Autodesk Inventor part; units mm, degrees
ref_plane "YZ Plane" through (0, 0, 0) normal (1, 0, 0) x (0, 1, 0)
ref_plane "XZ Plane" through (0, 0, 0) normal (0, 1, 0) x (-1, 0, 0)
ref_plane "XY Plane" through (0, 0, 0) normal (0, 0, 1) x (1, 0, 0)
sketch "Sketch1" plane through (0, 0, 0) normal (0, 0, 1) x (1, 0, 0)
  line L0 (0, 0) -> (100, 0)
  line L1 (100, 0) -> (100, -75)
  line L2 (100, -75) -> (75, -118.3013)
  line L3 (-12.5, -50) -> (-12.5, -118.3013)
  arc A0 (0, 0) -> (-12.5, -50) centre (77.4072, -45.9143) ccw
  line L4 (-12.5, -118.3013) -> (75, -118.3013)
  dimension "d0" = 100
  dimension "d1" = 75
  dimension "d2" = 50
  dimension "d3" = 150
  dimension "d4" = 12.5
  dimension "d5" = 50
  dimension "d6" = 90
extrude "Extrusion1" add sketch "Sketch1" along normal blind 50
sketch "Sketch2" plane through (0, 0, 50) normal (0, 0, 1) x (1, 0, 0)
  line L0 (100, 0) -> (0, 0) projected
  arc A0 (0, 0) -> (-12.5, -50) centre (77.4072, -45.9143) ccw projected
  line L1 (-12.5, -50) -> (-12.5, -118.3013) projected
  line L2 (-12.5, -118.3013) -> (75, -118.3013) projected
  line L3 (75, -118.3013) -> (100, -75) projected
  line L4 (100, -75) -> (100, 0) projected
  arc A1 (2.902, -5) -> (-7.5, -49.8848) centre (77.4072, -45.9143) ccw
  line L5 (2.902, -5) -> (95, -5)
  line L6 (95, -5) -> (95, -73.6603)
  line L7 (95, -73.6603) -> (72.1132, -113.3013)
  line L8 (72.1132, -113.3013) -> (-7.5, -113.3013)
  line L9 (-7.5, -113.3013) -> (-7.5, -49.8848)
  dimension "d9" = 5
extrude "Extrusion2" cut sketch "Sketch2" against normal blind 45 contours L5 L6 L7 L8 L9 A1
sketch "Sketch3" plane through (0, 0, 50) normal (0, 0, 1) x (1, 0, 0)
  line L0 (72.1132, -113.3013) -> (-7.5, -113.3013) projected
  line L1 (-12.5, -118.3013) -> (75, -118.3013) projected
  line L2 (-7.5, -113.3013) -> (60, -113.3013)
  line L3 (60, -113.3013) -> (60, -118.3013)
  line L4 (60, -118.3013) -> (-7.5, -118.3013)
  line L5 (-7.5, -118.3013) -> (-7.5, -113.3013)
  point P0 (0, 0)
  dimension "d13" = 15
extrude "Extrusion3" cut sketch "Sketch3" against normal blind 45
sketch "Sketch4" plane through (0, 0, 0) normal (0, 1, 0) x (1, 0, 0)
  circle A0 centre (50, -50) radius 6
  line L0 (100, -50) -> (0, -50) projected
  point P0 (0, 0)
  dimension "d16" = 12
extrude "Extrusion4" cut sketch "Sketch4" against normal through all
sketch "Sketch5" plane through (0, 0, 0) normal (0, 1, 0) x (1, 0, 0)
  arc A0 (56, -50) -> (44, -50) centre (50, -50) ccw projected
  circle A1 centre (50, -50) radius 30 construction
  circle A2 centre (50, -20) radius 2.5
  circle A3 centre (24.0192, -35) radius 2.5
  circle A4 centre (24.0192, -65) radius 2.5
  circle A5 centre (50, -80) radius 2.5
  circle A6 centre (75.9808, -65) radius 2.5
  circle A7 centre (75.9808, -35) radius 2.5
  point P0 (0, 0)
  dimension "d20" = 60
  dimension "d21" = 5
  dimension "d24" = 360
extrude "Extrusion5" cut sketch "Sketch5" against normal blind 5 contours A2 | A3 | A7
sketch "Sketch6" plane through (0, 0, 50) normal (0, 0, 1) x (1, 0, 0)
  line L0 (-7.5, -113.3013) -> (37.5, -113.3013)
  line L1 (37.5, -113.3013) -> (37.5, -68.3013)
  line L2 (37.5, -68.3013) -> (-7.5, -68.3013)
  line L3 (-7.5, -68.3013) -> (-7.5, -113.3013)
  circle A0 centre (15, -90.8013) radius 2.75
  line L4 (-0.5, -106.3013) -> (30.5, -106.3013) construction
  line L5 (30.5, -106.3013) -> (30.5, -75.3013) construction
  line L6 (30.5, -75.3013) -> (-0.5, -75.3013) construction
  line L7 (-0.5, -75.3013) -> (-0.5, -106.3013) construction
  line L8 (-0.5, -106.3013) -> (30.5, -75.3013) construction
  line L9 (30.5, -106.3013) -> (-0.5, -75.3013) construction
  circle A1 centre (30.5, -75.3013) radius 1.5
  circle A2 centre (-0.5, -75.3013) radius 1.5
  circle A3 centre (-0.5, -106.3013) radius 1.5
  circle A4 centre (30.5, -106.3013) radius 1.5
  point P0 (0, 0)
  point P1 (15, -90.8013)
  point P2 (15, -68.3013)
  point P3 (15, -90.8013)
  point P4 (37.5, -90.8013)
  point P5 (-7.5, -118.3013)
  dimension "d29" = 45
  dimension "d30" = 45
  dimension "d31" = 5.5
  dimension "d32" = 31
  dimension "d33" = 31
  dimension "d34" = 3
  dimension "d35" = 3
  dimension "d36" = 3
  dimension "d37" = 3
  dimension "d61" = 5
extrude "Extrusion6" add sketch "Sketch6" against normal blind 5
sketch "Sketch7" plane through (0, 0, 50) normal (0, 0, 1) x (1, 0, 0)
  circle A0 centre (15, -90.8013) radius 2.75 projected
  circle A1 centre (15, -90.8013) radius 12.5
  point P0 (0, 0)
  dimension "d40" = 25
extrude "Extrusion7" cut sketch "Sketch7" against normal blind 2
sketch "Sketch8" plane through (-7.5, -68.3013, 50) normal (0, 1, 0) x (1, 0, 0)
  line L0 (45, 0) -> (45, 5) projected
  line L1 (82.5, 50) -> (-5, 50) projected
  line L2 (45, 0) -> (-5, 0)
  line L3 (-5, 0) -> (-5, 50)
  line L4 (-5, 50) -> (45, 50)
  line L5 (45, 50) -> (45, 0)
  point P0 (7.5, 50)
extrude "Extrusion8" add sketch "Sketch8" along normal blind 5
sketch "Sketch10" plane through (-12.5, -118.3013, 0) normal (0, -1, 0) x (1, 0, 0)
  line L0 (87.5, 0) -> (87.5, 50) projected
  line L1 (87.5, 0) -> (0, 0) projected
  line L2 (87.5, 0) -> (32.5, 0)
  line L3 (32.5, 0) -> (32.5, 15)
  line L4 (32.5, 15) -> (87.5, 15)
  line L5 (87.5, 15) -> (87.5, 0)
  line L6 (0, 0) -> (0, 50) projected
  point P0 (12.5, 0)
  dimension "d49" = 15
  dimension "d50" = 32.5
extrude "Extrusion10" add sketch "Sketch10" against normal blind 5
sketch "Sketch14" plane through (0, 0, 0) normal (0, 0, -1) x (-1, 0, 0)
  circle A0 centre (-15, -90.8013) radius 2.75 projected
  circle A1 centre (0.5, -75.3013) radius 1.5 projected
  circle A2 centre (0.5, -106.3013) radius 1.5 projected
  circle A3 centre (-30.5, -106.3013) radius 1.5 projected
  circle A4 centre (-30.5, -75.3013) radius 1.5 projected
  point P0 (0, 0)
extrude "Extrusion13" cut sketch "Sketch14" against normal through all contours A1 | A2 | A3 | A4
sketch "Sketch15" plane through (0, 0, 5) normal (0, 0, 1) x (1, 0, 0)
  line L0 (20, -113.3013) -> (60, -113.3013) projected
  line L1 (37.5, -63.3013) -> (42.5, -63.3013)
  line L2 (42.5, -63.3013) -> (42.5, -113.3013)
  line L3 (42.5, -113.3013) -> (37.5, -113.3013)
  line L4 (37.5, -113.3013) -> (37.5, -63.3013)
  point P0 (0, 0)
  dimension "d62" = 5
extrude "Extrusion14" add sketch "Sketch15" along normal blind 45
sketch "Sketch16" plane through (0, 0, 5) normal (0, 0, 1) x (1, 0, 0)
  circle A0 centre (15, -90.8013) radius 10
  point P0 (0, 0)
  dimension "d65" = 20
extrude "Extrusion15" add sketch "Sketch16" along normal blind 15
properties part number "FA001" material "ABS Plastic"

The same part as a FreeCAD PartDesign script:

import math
import FreeCAD as App
import Part
import Sketcher
Q = App.Units.Quantity


def add_polygon(sketch, points):
    """Adds a closed chain of lines whose ends are joined by coincident constraints."""
    first, n = sketch.GeometryCount, len(points)
    for a, b in zip(points, points[1:] + points[:1]):
        sketch.addGeometry(Part.LineSegment(App.Vector(*a, 0), App.Vector(*b, 0)), False)
    for i in range(n):
        sketch.addConstraint(Sketcher.Constraint("Coincident", first + i, 2, first + (i + 1) % n, 1))

doc = App.newDocument("Part")
params = doc.addObject("Spreadsheet::Sheet", "Params")
for row, (alias, value) in enumerate([
    ("sketch1_radius", "90 mm"),
    ("sketch1_width", "100 mm"),
    ("sketch1_height", "75 mm"),
    ("sketch1_length", "50 mm"),
    ("pad1_length", "50 mm"),
    ("sketch2_radius", "85 mm"),
    ("pocket1_length", "45 mm"),
    ("sketch3_height", "5 mm"),
    ("sketch3_width", "67.5 mm"),
    ("pocket2_length", "45 mm"),
    ("sketch4_diameter", "12 mm"),
    ("sketch5_diameter", "5 mm"),
    ("pocket4_length", "5 mm"),
    ("sketch6_diameter", "3 mm"),
    ("sketch6_diameter2", "5.5 mm"),
    ("sketch6_width", "45 mm"),
    ("pad2_length", "5 mm"),
    ("sketch7_diameter", "25 mm"),
    ("sketch7_diameter2", "5.5 mm"),
    ("pocket5_length", "2 mm"),
    ("sketch8_width", "50 mm"),
    ("pad3_length", "5 mm"),
    ("sketch9_height", "15 mm"),
    ("sketch9_width", "55 mm"),
    ("pad4_length", "5 mm"),
    ("sketch10_diameter", "3 mm"),
    ("sketch11_width", "5 mm"),
    ("sketch11_height", "50 mm"),
    ("pad5_length", "45 mm"),
    ("sketch12_diameter", "20 mm"),
    ("pad6_length", "15 mm"),
], start=1):
    params.set(f"A{row}", alias)
    params.set(f"B{row}", "=" + value)
    params.setAlias(f"B{row}", alias)

body = doc.addObject("PartDesign::Body", "Body")

# Sketch on XY plane
sketch1 = body.newObject("Sketcher::SketchObject", "Sketch")
sketch1.AttachmentSupport = (doc.getObject("XY_Plane"), [""])
sketch1.MapMode = "FlatFace"
sketch1.addGeometry(Part.LineSegment(App.Vector(100, 0, 0), App.Vector(0, 0, 0)), False)
sketch1.addGeometry(Part.ArcOfCircle(Part.Circle(App.Vector(77, -46, 0), App.Vector(0, 0, 1), 90), math.radians(149), math.radians(183)), False)
sketch1.addGeometry(Part.LineSegment(App.Vector(-12, -50, 0), App.Vector(-12, -118, 0)), False)
sketch1.addGeometry(Part.LineSegment(App.Vector(-12, -118, 0), App.Vector(75, -118, 0)), False)
sketch1.addGeometry(Part.LineSegment(App.Vector(75, -118, 0), App.Vector(100, -75, 0)), False)
sketch1.addGeometry(Part.LineSegment(App.Vector(100, -75, 0), App.Vector(100, 0, 0)), False)
sketch1.addConstraint(Sketcher.Constraint("Coincident", 0, 2, 1, 1))
sketch1.addConstraint(Sketcher.Constraint("Coincident", 1, 2, 2, 1))
sketch1.addConstraint(Sketcher.Constraint("Coincident", 2, 2, 3, 1))
sketch1.addConstraint(Sketcher.Constraint("Coincident", 3, 2, 4, 1))
sketch1.addConstraint(Sketcher.Constraint("Coincident", 4, 2, 5, 1))
sketch1.addConstraint(Sketcher.Constraint("Coincident", 5, 2, 0, 1))
sketch1.addConstraint(Sketcher.Constraint("Horizontal", 0))
sketch1.addConstraint(Sketcher.Constraint("Vertical", 2))
sketch1.addConstraint(Sketcher.Constraint("Horizontal", 3))
sketch1.addConstraint(Sketcher.Constraint("Vertical", 5))
sketch1.addConstraint(Sketcher.Constraint("Coincident", 0, 2, -1, 1))
sketch1.addConstraint(Sketcher.Constraint("Radius", 1, Q("90 mm")))
sketch1.addConstraint(Sketcher.Constraint("DistanceX", 0, 2, 0, 1, Q("100 mm")))
sketch1.addConstraint(Sketcher.Constraint("DistanceY", 5, 1, 5, 2, Q("75 mm")))
sketch1.addConstraint(Sketcher.Constraint("Distance", 4, Q("50 mm")))
sketch1.addConstraint(Sketcher.Constraint("DistanceY", 1, 2, -1, 1, Q("50 mm")))
sketch1.addConstraint(Sketcher.Constraint("DistanceX", -1, 1, 3, 2, Q("75 mm")))
sketch1.addConstraint(Sketcher.Constraint("DistanceX", 1, 2, -1, 1, Q("12.5 mm")))
sketch1.setExpression("Constraints[11]", "Params.sketch1_radius")
sketch1.setExpression("Constraints[12]", "Params.sketch1_width")
sketch1.setExpression("Constraints[13]", "Params.sketch1_height")
sketch1.setExpression("Constraints[14]", "Params.sketch1_length")
pad1 = body.newObject("PartDesign::Pad", "Pad")
pad1.Profile = sketch1
pad1.setExpression("Length", "Params.pad1_length")

# Sketch on XY plane
sketch2 = body.newObject("Sketcher::SketchObject", "Sketch001")
sketch2.AttachmentSupport = (doc.getObject("XY_Plane"), [""])
sketch2.MapMode = "FlatFace"
sketch2.AttachmentOffset = App.Placement(App.Vector(0, 0, 50), App.Rotation())
sketch2.addGeometry(Part.LineSegment(App.Vector(95, -5, 0), App.Vector(3, -5, 0)), False)
sketch2.addGeometry(Part.ArcOfCircle(Part.Circle(App.Vector(77, -46, 0), App.Vector(0, 0, 1), 85), math.radians(151), math.radians(183)), False)
sketch2.addGeometry(Part.LineSegment(App.Vector(-8, -50, 0), App.Vector(-8, -113, 0)), False)
sketch2.addGeometry(Part.LineSegment(App.Vector(-8, -113, 0), App.Vector(72, -113, 0)), False)
sketch2.addGeometry(Part.LineSegment(App.Vector(72, -113, 0), App.Vector(95, -74, 0)), False)
sketch2.addGeometry(Part.LineSegment(App.Vector(95, -74, 0), App.Vector(95, -5, 0)), False)
sketch2.addConstraint(Sketcher.Constraint("Coincident", 0, 2, 1, 1))
sketch2.addConstraint(Sketcher.Constraint("Coincident", 1, 2, 2, 1))
sketch2.addConstraint(Sketcher.Constraint("Coincident", 2, 2, 3, 1))
sketch2.addConstraint(Sketcher.Constraint("Coincident", 3, 2, 4, 1))
sketch2.addConstraint(Sketcher.Constraint("Coincident", 4, 2, 5, 1))
sketch2.addConstraint(Sketcher.Constraint("Coincident", 5, 2, 0, 1))
sketch2.addConstraint(Sketcher.Constraint("Horizontal", 0))
sketch2.addConstraint(Sketcher.Constraint("Vertical", 2))
sketch2.addConstraint(Sketcher.Constraint("Horizontal", 3))
sketch2.addConstraint(Sketcher.Constraint("Vertical", 5))
sketch2.addConstraint(Sketcher.Constraint("DistanceY", 0, 2, -1, 1, Q("5 mm")))
sketch2.addConstraint(Sketcher.Constraint("Radius", 1, Q("85 mm")))
sketch2.addConstraint(Sketcher.Constraint("Angle", 4, Q("60 deg")))
sketch2.addConstraint(Sketcher.Constraint("DistanceX", -1, 1, 4, 2, Q("95 mm")))
sketch2.addConstraint(Sketcher.Constraint("DistanceX", 1, 2, -1, 1, Q("7.5 mm")))
sketch2.addConstraint(Sketcher.Constraint("DistanceX", 0, 2, 0, 1, Q("92.098 mm")))
sketch2.addConstraint(Sketcher.Constraint("DistanceX", 3, 1, 3, 2, Q("79.6132 mm")))
sketch2.addConstraint(Sketcher.Constraint("DistanceY", 2, 2, 2, 1, Q("63.4165 mm")))
sketch2.addConstraint(Sketcher.Constraint("DistanceY", 5, 1, 5, 2, Q("68.6603 mm")))
sketch2.setExpression("Constraints[11]", "Params.sketch2_radius")
pocket1 = body.newObject("PartDesign::Pocket", "Pocket")
pocket1.Profile = sketch2
pocket1.setExpression("Length", "Params.pocket1_length")

# Sketch on XY plane
sketch3 = body.newObject("Sketcher::SketchObject", "Sketch002")
sketch3.AttachmentSupport = (doc.getObject("XY_Plane"), [""])
sketch3.MapMode = "FlatFace"
sketch3.AttachmentOffset = App.Placement(App.Vector(0, 0, 50), App.Rotation())
add_polygon(sketch3, [(60, -118), (60, -113), (-8, -113), (-8, -118)])  # lines 0-3
sketch3.addConstraint(Sketcher.Constraint("Vertical", 0))
sketch3.addConstraint(Sketcher.Constraint("Horizontal", 1))
sketch3.addConstraint(Sketcher.Constraint("Vertical", 2))
sketch3.addConstraint(Sketcher.Constraint("Horizontal", 3))
sketch3.addConstraint(Sketcher.Constraint("DistanceY", 0, 1, 0, 2, Q("5 mm")))
sketch3.addConstraint(Sketcher.Constraint("DistanceX", 1, 2, 1, 1, Q("67.5 mm")))
sketch3.addConstraint(Sketcher.Constraint("DistanceX", -1, 1, 0, 2, Q("60 mm")))
sketch3.addConstraint(Sketcher.Constraint("DistanceY", 0, 2, -1, 1, Q("113.3013 mm")))
sketch3.setExpression("Constraints[8]", "Params.sketch3_height")
sketch3.setExpression("Constraints[9]", "Params.sketch3_width")
pocket2 = body.newObject("PartDesign::Pocket", "Pocket001")
pocket2.Profile = sketch3
pocket2.setExpression("Length", "Params.pocket2_length")

# Sketch on XZ plane
sketch4 = body.newObject("Sketcher::SketchObject", "Sketch003")
sketch4.AttachmentSupport = (doc.getObject("XZ_Plane"), [""])
sketch4.MapMode = "FlatFace"
sketch4.addGeometry(Part.Circle(App.Vector(50, 50, 0), App.Vector(0, 0, 1), 6), False)
sketch4.addConstraint(Sketcher.Constraint("Diameter", 0, Q("12 mm")))
sketch4.addConstraint(Sketcher.Constraint("DistanceX", -1, 1, 0, 3, Q("50 mm")))
sketch4.addConstraint(Sketcher.Constraint("DistanceY", -1, 1, 0, 3, Q("50 mm")))
sketch4.setExpression("Constraints[0]", "Params.sketch4_diameter")
pocket3 = body.newObject("PartDesign::Pocket", "Pocket002")
pocket3.Profile = sketch4
pocket3.Type = "ThroughAll"
pocket3.Reversed = True

# Sketch on XZ plane
sketch5 = body.newObject("Sketcher::SketchObject", "Sketch004")
sketch5.AttachmentSupport = (doc.getObject("XZ_Plane"), [""])
sketch5.MapMode = "FlatFace"
sketch5.addGeometry(Part.Circle(App.Vector(50, 20, 0), App.Vector(0, 0, 1), 2.5), False)
sketch5.addGeometry(Part.Circle(App.Vector(24, 35, 0), App.Vector(0, 0, 1), 2.5), False)
sketch5.addGeometry(Part.Circle(App.Vector(76, 35, 0), App.Vector(0, 0, 1), 2.5), False)
sketch5.addConstraint(Sketcher.Constraint("Equal", 0, 1))
sketch5.addConstraint(Sketcher.Constraint("Equal", 1, 2))
sketch5.addConstraint(Sketcher.Constraint("Horizontal", 1, 3, 2, 3))
sketch5.addConstraint(Sketcher.Constraint("Diameter", 0, Q("5 mm")))
sketch5.addConstraint(Sketcher.Constraint("DistanceX", -1, 1, 0, 3, Q("50 mm")))
sketch5.addConstraint(Sketcher.Constraint("DistanceY", -1, 1, 0, 3, Q("20 mm")))
sketch5.addConstraint(Sketcher.Constraint("DistanceY", -1, 1, 1, 3, Q("35 mm")))
sketch5.addConstraint(Sketcher.Constraint("DistanceX", -1, 1, 1, 3, Q("24.0192 mm")))
sketch5.addConstraint(Sketcher.Constraint("DistanceX", -1, 1, 2, 3, Q("75.9808 mm")))
sketch5.setExpression("Constraints[3]", "Params.sketch5_diameter")
pocket4 = body.newObject("PartDesign::Pocket", "Pocket003")
pocket4.Profile = sketch5
pocket4.setExpression("Length", "Params.pocket4_length")
pocket4.Reversed = True

# Sketch on XY plane
sketch6 = body.newObject("Sketcher::SketchObject", "Sketch005")
sketch6.AttachmentSupport = (doc.getObject("XY_Plane"), [""])
sketch6.MapMode = "FlatFace"
sketch6.AttachmentOffset = App.Placement(App.Vector(0, 0, 50), App.Rotation())
add_polygon(sketch6, [(-7.5, -68.3), (-7.5, -113.3), (37.5, -113.3), (37.5, -68.3)])  # lines 0-3
sketch6.addGeometry(Part.Circle(App.Vector(-0.5, -106.3, 0), App.Vector(0, 0, 1), 1.5), False)  # 4
sketch6.addGeometry(Part.Circle(App.Vector(30.5, -106.3, 0), App.Vector(0, 0, 1), 1.5), False)  # 5
sketch6.addGeometry(Part.Circle(App.Vector(-0.5, -75.3, 0), App.Vector(0, 0, 1), 1.5), False)  # 6
sketch6.addGeometry(Part.Circle(App.Vector(15, -90.8, 0), App.Vector(0, 0, 1), 2.8), False)  # 7
sketch6.addGeometry(Part.Circle(App.Vector(30.5, -75.3, 0), App.Vector(0, 0, 1), 1.5), False)  # 8
sketch6.addConstraint(Sketcher.Constraint("Vertical", 0))
sketch6.addConstraint(Sketcher.Constraint("Horizontal", 1))
sketch6.addConstraint(Sketcher.Constraint("Vertical", 2))
sketch6.addConstraint(Sketcher.Constraint("Horizontal", 3))
sketch6.addConstraint(Sketcher.Constraint("Equal", 4, 5))
sketch6.addConstraint(Sketcher.Constraint("Equal", 5, 6))
sketch6.addConstraint(Sketcher.Constraint("Equal", 6, 8))
sketch6.addConstraint(Sketcher.Constraint("Horizontal", 4, 3, 5, 3))
sketch6.addConstraint(Sketcher.Constraint("Horizontal", 6, 3, 8, 3))
sketch6.addConstraint(Sketcher.Constraint("Vertical", 4, 3, 6, 3))
sketch6.addConstraint(Sketcher.Constraint("Vertical", 5, 3, 8, 3))
sketch6.addConstraint(Sketcher.Constraint("Equal", 3, 0))
sketch6.addConstraint(Sketcher.Constraint("Diameter", 4, Q("3 mm")))
sketch6.addConstraint(Sketcher.Constraint("Diameter", 7, Q("5.5 mm")))
sketch6.addConstraint(Sketcher.Constraint("DistanceX", 1, 1, 1, 2, Q("45 mm")))
sketch6.addConstraint(Sketcher.Constraint("DistanceX", 4, 3, 5, 3, Q("31 mm")))
sketch6.addConstraint(Sketcher.Constraint("DistanceY", 4, 3, 6, 3, Q("31 mm")))
sketch6.addConstraint(Sketcher.Constraint("DistanceX", -1, 1, 7, 3, Q("15 mm")))
sketch6.addConstraint(Sketcher.Constraint("DistanceX", 0, 2, 4, 3, Q("7 mm")))
sketch6.addConstraint(Sketcher.Constraint("DistanceY", 0, 2, 4, 3, Q("7 mm")))
sketch6.addConstraint(Sketcher.Constraint("DistanceX", 4, 3, -1, 1, Q("0.5 mm")))
sketch6.addConstraint(Sketcher.Constraint("DistanceY", 4, 3, 7, 3, Q("15.5 mm")))
sketch6.addConstraint(Sketcher.Constraint("DistanceY", 4, 3, -1, 1, Q("106.3013 mm")))
sketch6.setExpression("Constraints[16]", "Params.sketch6_diameter")
sketch6.setExpression("Constraints[17]", "Params.sketch6_diameter2")
sketch6.setExpression("Constraints[18]", "Params.sketch6_width")
pad2 = body.newObject("PartDesign::Pad", "Pad001")
pad2.Profile = sketch6
pad2.setExpression("Length", "Params.pad2_length")
pad2.Reversed = True

# Sketch on XY plane
sketch7 = body.newObject("Sketcher::SketchObject", "Sketch006")
sketch7.AttachmentSupport = (doc.getObject("XY_Plane"), [""])
sketch7.MapMode = "FlatFace"
sketch7.AttachmentOffset = App.Placement(App.Vector(0, 0, 50), App.Rotation())
sketch7.addGeometry(Part.Circle(App.Vector(15, -90.8, 0), App.Vector(0, 0, 1), 12.5), False)
sketch7.addGeometry(Part.Circle(App.Vector(15, -90.8, 0), App.Vector(0, 0, 1), 2.8), False)
sketch7.addConstraint(Sketcher.Constraint("Coincident", 1, 3, 0, 3))
sketch7.addConstraint(Sketcher.Constraint("Diameter", 0, Q("25 mm")))
sketch7.addConstraint(Sketcher.Constraint("Diameter", 1, Q("5.5 mm")))
sketch7.addConstraint(Sketcher.Constraint("DistanceX", -1, 1, 0, 3, Q("15 mm")))
sketch7.addConstraint(Sketcher.Constraint("DistanceY", 0, 3, -1, 1, Q("90.8013 mm")))
sketch7.setExpression("Constraints[1]", "Params.sketch7_diameter")
sketch7.setExpression("Constraints[2]", "Params.sketch7_diameter2")
pocket5 = body.newObject("PartDesign::Pocket", "Pocket004")
pocket5.Profile = sketch7
pocket5.setExpression("Length", "Params.pocket5_length")

# Sketch on XZ plane
sketch8 = body.newObject("Sketcher::SketchObject", "Sketch007")
sketch8.AttachmentSupport = (doc.getObject("XZ_Plane"), [""])
sketch8.MapMode = "FlatFace"
sketch8.AttachmentOffset = App.Placement(App.Vector(0, 0, 68.3013), App.Rotation())
add_polygon(sketch8, [(-12, 50), (38, 50), (38, 0), (-12, 0)])  # lines 0-3
sketch8.addConstraint(Sketcher.Constraint("Horizontal", 0))
sketch8.addConstraint(Sketcher.Constraint("Vertical", 1))
sketch8.addConstraint(Sketcher.Constraint("Horizontal", 2))
sketch8.addConstraint(Sketcher.Constraint("Vertical", 3))
sketch8.addConstraint(Sketcher.Constraint("PointOnObject", 1, 2, -1))
sketch8.addConstraint(Sketcher.Constraint("Equal", 2, 1))
sketch8.addConstraint(Sketcher.Constraint("DistanceX", 0, 1, 0, 2, Q("50 mm")))
sketch8.addConstraint(Sketcher.Constraint("DistanceX", -1, 1, 0, 2, Q("37.5 mm")))
sketch8.setExpression("Constraints[10]", "Params.sketch8_width")
pad3 = body.newObject("PartDesign::Pad", "Pad002")
pad3.Profile = sketch8
pad3.setExpression("Length", "Params.pad3_length")
pad3.Reversed = True

# Sketch on XZ plane
sketch9 = body.newObject("Sketcher::SketchObject", "Sketch008")
sketch9.AttachmentSupport = (doc.getObject("XZ_Plane"), [""])
sketch9.MapMode = "FlatFace"
sketch9.AttachmentOffset = App.Placement(App.Vector(0, 0, 118.3013), App.Rotation())
add_polygon(sketch9, [(20, 0), (75, 0), (75, 15), (20, 15)])  # lines 0-3
sketch9.addConstraint(Sketcher.Constraint("Horizontal", 0))
sketch9.addConstraint(Sketcher.Constraint("Vertical", 1))
sketch9.addConstraint(Sketcher.Constraint("Horizontal", 2))
sketch9.addConstraint(Sketcher.Constraint("Vertical", 3))
sketch9.addConstraint(Sketcher.Constraint("PointOnObject", 0, 2, -1))
sketch9.addConstraint(Sketcher.Constraint("DistanceY", 1, 1, 1, 2, Q("15 mm")))
sketch9.addConstraint(Sketcher.Constraint("DistanceX", 0, 1, 0, 2, Q("55 mm")))
sketch9.addConstraint(Sketcher.Constraint("DistanceX", -1, 1, 0, 2, Q("75 mm")))
sketch9.setExpression("Constraints[9]", "Params.sketch9_height")
sketch9.setExpression("Constraints[10]", "Params.sketch9_width")
pad4 = body.newObject("PartDesign::Pad", "Pad003")
pad4.Profile = sketch9
pad4.setExpression("Length", "Params.pad4_length")
pad4.Reversed = True

# Sketch on XY plane
sketch10 = body.newObject("Sketcher::SketchObject", "Sketch009")
sketch10.AttachmentSupport = (doc.getObject("XY_Plane"), [""])
sketch10.MapMode = "FlatFace"
sketch10.addGeometry(Part.Circle(App.Vector(-0.5, -75.3, 0), App.Vector(0, 0, 1), 1.5), False)
sketch10.addGeometry(Part.Circle(App.Vector(-0.5, -106.3, 0), App.Vector(0, 0, 1), 1.5), False)
sketch10.addGeometry(Part.Circle(App.Vector(30.5, -106.3, 0), App.Vector(0, 0, 1), 1.5), False)
sketch10.addGeometry(Part.Circle(App.Vector(30.5, -75.3, 0), App.Vector(0, 0, 1), 1.5), False)
sketch10.addConstraint(Sketcher.Constraint("Equal", 0, 1))
sketch10.addConstraint(Sketcher.Constraint("Equal", 1, 2))
sketch10.addConstraint(Sketcher.Constraint("Equal", 2, 3))
sketch10.addConstraint(Sketcher.Constraint("Horizontal", 1, 3, 2, 3))
sketch10.addConstraint(Sketcher.Constraint("Horizontal", 0, 3, 3, 3))
sketch10.addConstraint(Sketcher.Constraint("Vertical", 0, 3, 1, 3))
sketch10.addConstraint(Sketcher.Constraint("Vertical", 2, 3, 3, 3))
sketch10.addConstraint(Sketcher.Constraint("Diameter", 0, Q("3 mm")))
sketch10.addConstraint(Sketcher.Constraint("DistanceY", 1, 3, 0, 3, Q("31 mm")))
sketch10.addConstraint(Sketcher.Constraint("DistanceX", 1, 3, 2, 3, Q("31 mm")))
sketch10.addConstraint(Sketcher.Constraint("DistanceX", 0, 3, -1, 1, Q("0.5 mm")))
sketch10.addConstraint(Sketcher.Constraint("DistanceY", 0, 3, -1, 1, Q("75.3013 mm")))
sketch10.setExpression("Constraints[7]", "Params.sketch10_diameter")
pocket6 = body.newObject("PartDesign::Pocket", "Pocket005")
pocket6.Profile = sketch10
pocket6.Type = "ThroughAll"
pocket6.Reversed = True

# Sketch on XY plane
sketch11 = body.newObject("Sketcher::SketchObject", "Sketch010")
sketch11.AttachmentSupport = (doc.getObject("XY_Plane"), [""])
sketch11.MapMode = "FlatFace"
sketch11.AttachmentOffset = App.Placement(App.Vector(0, 0, 5), App.Rotation())
add_polygon(sketch11, [(38, -63), (38, -113), (42, -113), (42, -63)])  # lines 0-3
sketch11.addConstraint(Sketcher.Constraint("Vertical", 0))
sketch11.addConstraint(Sketcher.Constraint("Horizontal", 1))
sketch11.addConstraint(Sketcher.Constraint("Vertical", 2))
sketch11.addConstraint(Sketcher.Constraint("Horizontal", 3))
sketch11.addConstraint(Sketcher.Constraint("DistanceX", 1, 1, 1, 2, Q("5 mm")))
sketch11.addConstraint(Sketcher.Constraint("DistanceY", 0, 2, 0, 1, Q("50 mm")))
sketch11.addConstraint(Sketcher.Constraint("DistanceX", -1, 1, 0, 2, Q("37.5 mm")))
sketch11.addConstraint(Sketcher.Constraint("DistanceY", 0, 2, -1, 1, Q("113.3013 mm")))
sketch11.setExpression("Constraints[8]", "Params.sketch11_width")
sketch11.setExpression("Constraints[9]", "Params.sketch11_height")
pad5 = body.newObject("PartDesign::Pad", "Pad004")
pad5.Profile = sketch11
pad5.setExpression("Length", "Params.pad5_length")

# Sketch on XY plane
sketch12 = body.newObject("Sketcher::SketchObject", "Sketch011")
sketch12.AttachmentSupport = (doc.getObject("XY_Plane"), [""])
sketch12.MapMode = "FlatFace"
sketch12.AttachmentOffset = App.Placement(App.Vector(0, 0, 5), App.Rotation())
sketch12.addGeometry(Part.Circle(App.Vector(15, -91, 0), App.Vector(0, 0, 1), 10), False)
sketch12.addConstraint(Sketcher.Constraint("Diameter", 0, Q("20 mm")))
sketch12.addConstraint(Sketcher.Constraint("DistanceX", -1, 1, 0, 3, Q("15 mm")))
sketch12.addConstraint(Sketcher.Constraint("DistanceY", 0, 3, -1, 1, Q("90.8013 mm")))
sketch12.setExpression("Constraints[0]", "Params.sketch12_diameter")
pad6 = body.newObject("PartDesign::Pad", "Pad005")
pad6.Profile = sketch12
pad6.setExpression("Length", "Params.pad6_length")

doc.recompute()
